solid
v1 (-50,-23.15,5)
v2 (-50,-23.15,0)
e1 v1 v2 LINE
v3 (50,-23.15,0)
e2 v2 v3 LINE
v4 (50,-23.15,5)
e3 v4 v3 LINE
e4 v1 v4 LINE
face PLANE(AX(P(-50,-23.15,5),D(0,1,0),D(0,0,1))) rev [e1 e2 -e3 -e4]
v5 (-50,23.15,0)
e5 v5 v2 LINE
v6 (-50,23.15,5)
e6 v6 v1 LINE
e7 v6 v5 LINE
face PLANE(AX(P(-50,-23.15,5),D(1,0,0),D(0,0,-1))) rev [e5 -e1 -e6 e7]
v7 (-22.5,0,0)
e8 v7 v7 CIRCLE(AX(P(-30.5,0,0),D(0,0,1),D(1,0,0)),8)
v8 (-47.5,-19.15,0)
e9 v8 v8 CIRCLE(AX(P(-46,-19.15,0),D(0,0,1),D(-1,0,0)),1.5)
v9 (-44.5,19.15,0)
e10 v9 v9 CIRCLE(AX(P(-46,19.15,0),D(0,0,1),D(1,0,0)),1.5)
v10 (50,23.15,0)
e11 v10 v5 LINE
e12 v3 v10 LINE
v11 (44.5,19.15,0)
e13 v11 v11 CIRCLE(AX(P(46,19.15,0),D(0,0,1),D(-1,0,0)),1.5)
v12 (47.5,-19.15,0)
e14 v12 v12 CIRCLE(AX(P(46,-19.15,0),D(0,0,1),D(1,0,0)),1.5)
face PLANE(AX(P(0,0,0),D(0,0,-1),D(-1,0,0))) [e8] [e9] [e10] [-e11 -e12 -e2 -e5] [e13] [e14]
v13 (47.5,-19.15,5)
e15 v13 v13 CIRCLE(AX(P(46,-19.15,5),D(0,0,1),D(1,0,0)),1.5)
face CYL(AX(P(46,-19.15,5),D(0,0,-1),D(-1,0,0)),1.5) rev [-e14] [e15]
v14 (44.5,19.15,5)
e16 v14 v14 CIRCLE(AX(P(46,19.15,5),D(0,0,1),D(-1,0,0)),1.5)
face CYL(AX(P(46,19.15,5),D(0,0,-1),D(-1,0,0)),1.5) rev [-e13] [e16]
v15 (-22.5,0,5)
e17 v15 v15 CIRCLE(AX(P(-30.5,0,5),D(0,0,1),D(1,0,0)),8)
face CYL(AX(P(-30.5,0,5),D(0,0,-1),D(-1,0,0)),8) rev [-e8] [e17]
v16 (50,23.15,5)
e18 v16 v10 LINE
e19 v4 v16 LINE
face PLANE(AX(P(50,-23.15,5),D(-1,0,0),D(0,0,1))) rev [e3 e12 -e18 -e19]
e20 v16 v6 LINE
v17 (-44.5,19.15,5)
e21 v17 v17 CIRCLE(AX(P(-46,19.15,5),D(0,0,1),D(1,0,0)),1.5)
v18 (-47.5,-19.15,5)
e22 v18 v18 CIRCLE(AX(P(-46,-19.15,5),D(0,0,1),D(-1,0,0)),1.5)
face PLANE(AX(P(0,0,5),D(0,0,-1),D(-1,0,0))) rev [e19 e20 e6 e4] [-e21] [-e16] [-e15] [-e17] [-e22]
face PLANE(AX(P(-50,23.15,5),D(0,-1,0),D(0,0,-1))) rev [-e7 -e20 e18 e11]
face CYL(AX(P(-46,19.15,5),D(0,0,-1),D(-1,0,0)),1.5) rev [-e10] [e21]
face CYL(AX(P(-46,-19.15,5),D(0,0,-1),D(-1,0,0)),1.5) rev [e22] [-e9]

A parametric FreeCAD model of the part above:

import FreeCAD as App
import Part
import Sketcher
from FreeCAD import Vector


def add_polygon(sketch, points):
    """Adds a closed chain of lines whose ends are joined by coincident constraints."""
    first, n = sketch.GeometryCount, len(points)
    for a, b in zip(points, points[1:] + points[:1]):
        sketch.addGeometry(Part.LineSegment(App.Vector(*a, 0), App.Vector(*b, 0)), False)
    for i in range(n):
        sketch.addConstraint(Sketcher.Constraint("Coincident", first + i, 2, first + (i + 1) % n, 1))

doc = App.newDocument("Part")
body = doc.addObject("PartDesign::Body", "Body")

# Sketch on XY plane
sketch1 = body.newObject("Sketcher::SketchObject", "Sketch")
sketch1.AttachmentSupport = (doc.getObject("XY_Plane"), [""])
sketch1.MapMode = "FlatFace"
add_polygon(sketch1, [(-50, 23.15), (-50, -23.15), (50, -23.15), (50, 23.15)])  # lines 0-3
sketch1.addGeometry(Part.Circle(Vector(-46, -19.15, 0), Vector(0, 0, 1), 1.5), False)  # 4
sketch1.addGeometry(Part.Circle(Vector(46, -19.15, 0), Vector(0, 0, 1), 1.5), False)  # 5
sketch1.addGeometry(Part.Circle(Vector(-30.5, 0, 0), Vector(0, 0, 1), 8), False)  # 6
sketch1.addGeometry(Part.Circle(Vector(-46, 19.15, 0), Vector(0, 0, 1), 1.5), False)  # 7
sketch1.addGeometry(Part.Circle(Vector(46, 19.15, 0), Vector(0, 0, 1), 1.5), False)  # 8
sketch1.addConstraint([
    Sketcher.Constraint("Vertical", 0),
    Sketcher.Constraint("Horizontal", 1),
    Sketcher.Constraint("Vertical", 2),
    Sketcher.Constraint("Horizontal", 3),
    Sketcher.Constraint("Equal", 4, 5),
    Sketcher.Constraint("Equal", 5, 7),
    Sketcher.Constraint("Equal", 7, 8),
    Sketcher.Constraint("Symmetric", 5, 3, 7, 3, -1, 1),
    Sketcher.Constraint("Symmetric", 4, 3, 8, 3, -1, 1),
    Sketcher.Constraint("Symmetric", 0, 2, 2, 2, -1, 1),
    Sketcher.Constraint("Symmetric", 4, 3, 5, 3, -2),
    Sketcher.Constraint("PointOnObject", 6, 3, -1),
    Sketcher.Constraint("Diameter", 4, 3.0),
    Sketcher.Constraint("Diameter", 6, 16.0),
    Sketcher.Constraint("DistanceX", 1, 1, 1, 2, 100.0),
    Sketcher.Constraint("DistanceY", 0, 2, 0, 1, 46.3),
    Sketcher.Constraint("DistanceX", 4, 3, -1, 1, 46.0),
    Sketcher.Constraint("DistanceY", 0, 2, 4, 3, 4.0),
    Sketcher.Constraint("DistanceX", 6, 3, -1, 1, 30.5),
])
pad1 = body.newObject("PartDesign::Pad", "Pad")
pad1.Profile = sketch1
pad1.Length = 5

doc.recompute()
